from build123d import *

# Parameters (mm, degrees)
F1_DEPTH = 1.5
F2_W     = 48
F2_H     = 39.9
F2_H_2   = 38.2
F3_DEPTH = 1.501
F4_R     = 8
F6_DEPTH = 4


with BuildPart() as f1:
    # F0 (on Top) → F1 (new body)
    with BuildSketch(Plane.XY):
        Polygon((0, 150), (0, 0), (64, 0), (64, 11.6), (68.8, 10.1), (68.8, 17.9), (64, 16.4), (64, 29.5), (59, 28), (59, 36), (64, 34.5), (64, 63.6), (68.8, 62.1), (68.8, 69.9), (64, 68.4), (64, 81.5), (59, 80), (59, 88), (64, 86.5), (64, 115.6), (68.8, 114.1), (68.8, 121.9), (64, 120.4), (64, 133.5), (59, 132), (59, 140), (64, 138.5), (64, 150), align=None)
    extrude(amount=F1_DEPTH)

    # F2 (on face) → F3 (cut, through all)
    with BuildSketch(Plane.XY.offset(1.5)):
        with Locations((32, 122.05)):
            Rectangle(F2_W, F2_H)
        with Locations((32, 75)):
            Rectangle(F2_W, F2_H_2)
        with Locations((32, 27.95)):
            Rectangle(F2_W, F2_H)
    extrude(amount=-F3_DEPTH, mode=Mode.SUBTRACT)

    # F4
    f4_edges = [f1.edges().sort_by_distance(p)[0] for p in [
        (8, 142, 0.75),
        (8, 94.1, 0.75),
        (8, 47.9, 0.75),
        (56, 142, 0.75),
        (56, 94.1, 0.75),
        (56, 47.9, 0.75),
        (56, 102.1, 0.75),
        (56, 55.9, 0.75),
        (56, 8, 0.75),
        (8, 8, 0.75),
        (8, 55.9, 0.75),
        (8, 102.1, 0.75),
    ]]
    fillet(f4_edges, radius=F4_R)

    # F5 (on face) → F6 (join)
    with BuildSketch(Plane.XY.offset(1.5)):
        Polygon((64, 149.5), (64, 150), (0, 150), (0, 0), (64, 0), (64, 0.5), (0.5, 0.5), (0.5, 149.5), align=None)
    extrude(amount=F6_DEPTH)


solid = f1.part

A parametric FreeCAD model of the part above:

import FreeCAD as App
import Part
import Sketcher


def edges_at(feature, points):
    """Names of the edges that pass closest to the given points."""
    edges = feature.Shape.Edges
    near = lambda p: min(range(len(edges)), key=lambda i: edges[i].distToShape(Part.Vertex(*p))[0])
    return sorted({f"Edge{near(p) + 1}" for p in points})

doc = App.newDocument("Part")
params = doc.addObject("Spreadsheet::Sheet", "Params")
for row, (alias, value) in enumerate([
    ("sketch1_width", "64 mm"),
    ("sketch1_height", "150 mm"),
    ("sketch1_height2", "8 mm"),
    ("sketch1_height3", "11.6 mm"),
    ("sketch1_height4", "7.8 mm"),
    ("pad1_length", "1.5 mm"),
    ("sketch2_width", "48 mm"),
    ("sketch2_height", "39.9 mm"),
    ("sketch2_height2", "38.2 mm"),
    ("fillet_radius", "8 mm"),
    ("sketch3_width", "64 mm"),
    ("sketch3_height", "150 mm"),
    ("sketch3_height2", "149 mm"),
    ("sketch3_width2", "63.5 mm"),
    ("pad2_length", "4 mm"),
], start=1):
    params.set(f"A{row}", alias)
    params.set(f"B{row}", "=" + value)
    params.setAlias(f"B{row}", alias)

body = doc.addObject("PartDesign::Body", "Body")

# Sketch on XY plane
sketch1 = body.newObject("Sketcher::SketchObject", "Sketch")
sketch1.AttachmentSupport = (doc.getObject("XY_Plane"), [""])
sketch1.MapMode = "FlatFace"
sketch1.addGeometry([
    Part.LineSegment(App.Vector(0, 150, 0), App.Vector(0, 0, 0)),  # 0
    Part.LineSegment(App.Vector(0, 0, 0), App.Vector(64, 0, 0)),  # 1
    Part.LineSegment(App.Vector(64, 0, 0), App.Vector(64, 12, 0)),  # 2
    Part.LineSegment(App.Vector(64, 12, 0), App.Vector(69, 10, 0)),  # 3
    Part.LineSegment(App.Vector(69, 10, 0), App.Vector(69, 18, 0)),  # 4
    Part.LineSegment(App.Vector(69, 18, 0), App.Vector(64, 16, 0)),  # 5
    Part.LineSegment(App.Vector(64, 16, 0), App.Vector(64, 30, 0)),  # 6
    Part.LineSegment(App.Vector(64, 30, 0), App.Vector(59, 28, 0)),  # 7
    Part.LineSegment(App.Vector(59, 28, 0), App.Vector(59, 36, 0)),  # 8
    Part.LineSegment(App.Vector(59, 36, 0), App.Vector(64, 34, 0)),  # 9
    Part.LineSegment(App.Vector(64, 34, 0), App.Vector(64, 64, 0)),  # 10
    Part.LineSegment(App.Vector(64, 64, 0), App.Vector(69, 62, 0)),  # 11
    Part.LineSegment(App.Vector(69, 62, 0), App.Vector(69, 70, 0)),  # 12
    Part.LineSegment(App.Vector(69, 70, 0), App.Vector(64, 68, 0)),  # 13
    Part.LineSegment(App.Vector(64, 68, 0), App.Vector(64, 82, 0)),  # 14
    Part.LineSegment(App.Vector(64, 82, 0), App.Vector(59, 80, 0)),  # 15
    Part.LineSegment(App.Vector(59, 80, 0), App.Vector(59, 88, 0)),  # 16
    Part.LineSegment(App.Vector(59, 88, 0), App.Vector(64, 86, 0)),  # 17
    Part.LineSegment(App.Vector(64, 86, 0), App.Vector(64, 116, 0)),  # 18
    Part.LineSegment(App.Vector(64, 116, 0), App.Vector(69, 114, 0)),  # 19
    Part.LineSegment(App.Vector(69, 114, 0), App.Vector(69, 122, 0)),  # 20
    Part.LineSegment(App.Vector(69, 122, 0), App.Vector(64, 120, 0)),  # 21
    Part.LineSegment(App.Vector(64, 120, 0), App.Vector(64, 134, 0)),  # 22
    Part.LineSegment(App.Vector(64, 134, 0), App.Vector(59, 132, 0)),  # 23
    Part.LineSegment(App.Vector(59, 132, 0), App.Vector(59, 140, 0)),  # 24
    Part.LineSegment(App.Vector(59, 140, 0), App.Vector(64, 138, 0)),  # 25
    Part.LineSegment(App.Vector(64, 138, 0), App.Vector(64, 150, 0)),  # 26
    Part.LineSegment(App.Vector(64, 150, 0), App.Vector(0, 150, 0)),  # 27
], False)
sketch1.addConstraint([
    Sketcher.Constraint("Coincident", 0, 2, 1, 1),
    Sketcher.Constraint("Coincident", 1, 2, 2, 1),
    Sketcher.Constraint("Coincident", 2, 2, 3, 1),
    Sketcher.Constraint("Coincident", 3, 2, 4, 1),
    Sketcher.Constraint("Coincident", 4, 2, 5, 1),
    Sketcher.Constraint("Coincident", 5, 2, 6, 1),
    Sketcher.Constraint("Coincident", 6, 2, 7, 1),
    Sketcher.Constraint("Coincident", 7, 2, 8, 1),
    Sketcher.Constraint("Coincident", 8, 2, 9, 1),
    Sketcher.Constraint("Coincident", 9, 2, 10, 1),
    Sketcher.Constraint("Coincident", 10, 2, 11, 1),
    Sketcher.Constraint("Coincident", 11, 2, 12, 1),
    Sketcher.Constraint("Coincident", 12, 2, 13, 1),
    Sketcher.Constraint("Coincident", 13, 2, 14, 1),
    Sketcher.Constraint("Coincident", 14, 2, 15, 1),
    Sketcher.Constraint("Coincident", 15, 2, 16, 1),
    Sketcher.Constraint("Coincident", 16, 2, 17, 1),
    Sketcher.Constraint("Coincident", 17, 2, 18, 1),
    Sketcher.Constraint("Coincident", 18, 2, 19, 1),
    Sketcher.Constraint("Coincident", 19, 2, 20, 1),
    Sketcher.Constraint("Coincident", 20, 2, 21, 1),
    Sketcher.Constraint("Coincident", 21, 2, 22, 1),
    Sketcher.Constraint("Coincident", 22, 2, 23, 1),
    Sketcher.Constraint("Coincident", 23, 2, 24, 1),
    Sketcher.Constraint("Coincident", 24, 2, 25, 1),
    Sketcher.Constraint("Coincident", 25, 2, 26, 1),
    Sketcher.Constraint("Coincident", 26, 2, 27, 1),
    Sketcher.Constraint("Coincident", 27, 2, 0, 1),
    Sketcher.Constraint("Vertical", 0),
    Sketcher.Constraint("Horizontal", 1),
    Sketcher.Constraint("Vertical", 2),
    Sketcher.Constraint("Vertical", 4),
    Sketcher.Constraint("Vertical", 6),
    Sketcher.Constraint("Vertical", 8),
    Sketcher.Constraint("Vertical", 10),
    Sketcher.Constraint("Vertical", 12),
    Sketcher.Constraint("Vertical", 14),
    Sketcher.Constraint("Vertical", 16),
    Sketcher.Constraint("Vertical", 18),
    Sketcher.Constraint("Vertical", 20),
    Sketcher.Constraint("Vertical", 22),
    Sketcher.Constraint("Vertical", 24),
    Sketcher.Constraint("Vertical", 26),
    Sketcher.Constraint("Horizontal", 27),
    Sketcher.Constraint("Coincident", 0, 2, -1, 1),
    Sketcher.Constraint("Parallel", 3, 11),
    Sketcher.Constraint("Parallel", 5, 13),
    Sketcher.Constraint("Parallel", 7, 15),
    Sketcher.Constraint("Parallel", 9, 17),
    Sketcher.Constraint("Parallel", 11, 19),
    Sketcher.Constraint("Parallel", 13, 21),
    Sketcher.Constraint("Parallel", 15, 23),
    Sketcher.Constraint("Parallel", 17, 25),
    Sketcher.Constraint("Vertical", 2, 2, 5, 2),
    Sketcher.Constraint("Vertical", 6, 2, 9, 2),
    Sketcher.Constraint("Vertical", 4, 2, 11, 2),
    Sketcher.Constraint("Vertical", 10, 2, 13, 2),
    Sketcher.Constraint("Vertical", 8, 2, 15, 2),
    Sketcher.Constraint("Vertical", 14, 2, 17, 2),
    Sketcher.Constraint("Vertical", 12, 2, 19, 2),
    Sketcher.Constraint("Vertical", 18, 2, 21, 2),
    Sketcher.Constraint("Vertical", 16, 2, 23, 2),
    Sketcher.Constraint("Vertical", 22, 2, 25, 2),
    Sketcher.Constraint("Equal", 4, 12),
    Sketcher.Constraint("Equal", 6, 14),
    Sketcher.Constraint("Equal", 8, 16),
    Sketcher.Constraint("Equal", 10, 18),
    Sketcher.Constraint("Equal", 12, 20),
    Sketcher.Constraint("Equal", 14, 22),
    Sketcher.Constraint("Equal", 16, 24),
    Sketcher.Constraint("Equal", 3, 5),
    Sketcher.Constraint("Equal", 7, 9),
    Sketcher.Constraint("DistanceX", 1, 1, 1, 2, 64.0),
    Sketcher.Constraint("DistanceY", 0, 2, 0, 1, 150.0),
    Sketcher.Constraint("DistanceY", 8, 1, 8, 2, 8.0),
    Sketcher.Constraint("DistanceY", 2, 1, 2, 2, 11.6),
    Sketcher.Constraint("DistanceY", 4, 1, 4, 2, 7.8),
    Sketcher.Constraint("DistanceY", 6, 1, 6, 2, 13.1),
    Sketcher.Constraint("DistanceY", 10, 1, 10, 2, 29.1),
    Sketcher.Constraint("DistanceY", 26, 1, 26, 2, 11.5),
    Sketcher.Constraint("DistanceX", -1, 1, 7, 2, 59.0),
    Sketcher.Constraint("DistanceY", -1, 1, 7, 2, 28.0),
    Sketcher.Constraint("DistanceX", -1, 1, 3, 2, 68.8),
])
sketch1.setExpression("Constraints[72]", "Params.sketch1_width")
sketch1.setExpression("Constraints[73]", "Params.sketch1_height")
sketch1.setExpression("Constraints[74]", "Params.sketch1_height2")
sketch1.setExpression("Constraints[75]", "Params.sketch1_height3")
sketch1.setExpression("Constraints[76]", "Params.sketch1_height4")
pad1 = body.newObject("PartDesign::Pad", "Pad")
pad1.Profile = sketch1
pad1.setExpression("Length", "Params.pad1_length")

# Sketch on XY plane
sketch2 = body.newObject("Sketcher::SketchObject", "Sketch001")
sketch2.AttachmentSupport = (doc.getObject("XY_Plane"), [""])
sketch2.MapMode = "FlatFace"
sketch2.AttachmentOffset = App.Placement(App.Vector(0, 0, 1.5), App.Rotation())
sketch2.addGeometry([
    Part.LineSegment(App.Vector(8, 142, 0), App.Vector(8, 102, 0)),  # 0
    Part.LineSegment(App.Vector(8, 102, 0), App.Vector(56, 102, 0)),  # 1
    Part.LineSegment(App.Vector(56, 102, 0), App.Vector(56, 142, 0)),  # 2
    Part.LineSegment(App.Vector(56, 142, 0), App.Vector(8, 142, 0)),  # 3
    Part.LineSegment(App.Vector(8, 94, 0), App.Vector(8, 56, 0)),  # 4
    Part.LineSegment(App.Vector(8, 56, 0), App.Vector(56, 56, 0)),  # 5
    Part.LineSegment(App.Vector(56, 56, 0), App.Vector(56, 94, 0)),  # 6
    Part.LineSegment(App.Vector(56, 94, 0), App.Vector(8, 94, 0)),  # 7
    Part.LineSegment(App.Vector(8, 48, 0), App.Vector(8, 8, 0)),  # 8
    Part.LineSegment(App.Vector(8, 8, 0), App.Vector(56, 8, 0)),  # 9
    Part.LineSegment(App.Vector(56, 8, 0), App.Vector(56, 48, 0)),  # 10
    Part.LineSegment(App.Vector(56, 48, 0), App.Vector(8, 48, 0)),  # 11
], False)
sketch2.addConstraint([
    Sketcher.Constraint("Coincident", 0, 2, 1, 1),
    Sketcher.Constraint("Coincident", 1, 2, 2, 1),
    Sketcher.Constraint("Coincident", 2, 2, 3, 1),
    Sketcher.Constraint("Coincident", 3, 2, 0, 1),
    Sketcher.Constraint("Coincident", 4, 2, 5, 1),
    Sketcher.Constraint("Coincident", 5, 2, 6, 1),
    Sketcher.Constraint("Coincident", 6, 2, 7, 1),
    Sketcher.Constraint("Coincident", 7, 2, 4, 1),
    Sketcher.Constraint("Coincident", 8, 2, 9, 1),
    Sketcher.Constraint("Coincident", 9, 2, 10, 1),
    Sketcher.Constraint("Coincident", 10, 2, 11, 1),
    Sketcher.Constraint("Coincident", 11, 2, 8, 1),
    Sketcher.Constraint("Vertical", 0),
    Sketcher.Constraint("Horizontal", 1),
    Sketcher.Constraint("Vertical", 2),
    Sketcher.Constraint("Horizontal", 3),
    Sketcher.Constraint("Vertical", 4),
    Sketcher.Constraint("Horizontal", 5),
    Sketcher.Constraint("Vertical", 6),
    Sketcher.Constraint("Horizontal", 7),
    Sketcher.Constraint("Vertical", 8),
    Sketcher.Constraint("Horizontal", 9),
    Sketcher.Constraint("Vertical", 10),
    Sketcher.Constraint("Horizontal", 11),
    Sketcher.Constraint("Vertical", 3, 2, 4, 2),
    Sketcher.Constraint("Vertical", 2, 2, 5, 2),
    Sketcher.Constraint("Vertical", 7, 2, 8, 2),
    Sketcher.Constraint("Vertical", 6, 2, 9, 2),
    Sketcher.Constraint("Equal", 2, 8),
    Sketcher.Constraint("DistanceX", 1, 1, 1, 2, 48.0),
    Sketcher.Constraint("DistanceY", 0, 2, 0, 1, 39.9),
    Sketcher.Constraint("DistanceY", 4, 2, 4, 1, 38.2),
    Sketcher.Constraint("DistanceX", -1, 1, 0, 2, 8.0),
    Sketcher.Constraint("DistanceY", -1, 1, 2, 2, 142.0),
    Sketcher.Constraint("DistanceY", -1, 1, 8, 2, 8.0),
    Sketcher.Constraint("DistanceY", 6, 2, 1, 2, 8.0),
])
sketch2.setExpression("Constraints[29]", "Params.sketch2_width")
sketch2.setExpression("Constraints[30]", "Params.sketch2_height")
sketch2.setExpression("Constraints[31]", "Params.sketch2_height2")
pocket1 = body.newObject("PartDesign::Pocket", "Pocket")
pocket1.Profile = sketch2
pocket1.Type = "ThroughAll"
doc.recompute()

fillet = body.newObject("PartDesign::Fillet", "Fillet")
fillet.Base = (pocket1, edges_at(pocket1, [
    (8, 142, 0.75),
    (8, 94.1, 0.75),
    (8, 47.9, 0.75),
    (56, 142, 0.75),
    (56, 94.1, 0.75),
    (56, 47.9, 0.75),
    (56, 102.1, 0.75),
    (56, 55.9, 0.75),
    (56, 8, 0.75),
    (8, 8, 0.75),
    (8, 55.9, 0.75),
    (8, 102.1, 0.75),
]))
fillet.setExpression("Radius", "Params.fillet_radius")

# Sketch on XY plane
sketch3 = body.newObject("Sketcher::SketchObject", "Sketch002")
sketch3.AttachmentSupport = (doc.getObject("XY_Plane"), [""])
sketch3.MapMode = "FlatFace"
sketch3.AttachmentOffset = App.Placement(App.Vector(0, 0, 1.5), App.Rotation())
sketch3.addGeometry([
    Part.LineSegment(App.Vector(64, 149.5, 0), App.Vector(64, 150, 0)),  # 0
    Part.LineSegment(App.Vector(64, 150, 0), App.Vector(0, 150, 0)),  # 1
    Part.LineSegment(App.Vector(0, 150, 0), App.Vector(0, 0, 0)),  # 2
    Part.LineSegment(App.Vector(0, 0, 0), App.Vector(64, 0, 0)),  # 3
    Part.LineSegment(App.Vector(64, 0, 0), App.Vector(64, 0.5, 0)),  # 4
    Part.LineSegment(App.Vector(64, 0.5, 0), App.Vector(0.5, 0.5, 0)),  # 5
    Part.LineSegment(App.Vector(0.5, 0.5, 0), App.Vector(0.5, 149.5, 0)),  # 6
    Part.LineSegment(App.Vector(0.5, 149.5, 0), App.Vector(64, 149.5, 0)),  # 7
], False)
sketch3.addConstraint([
    Sketcher.Constraint("Coincident", 0, 2, 1, 1),
    Sketcher.Constraint("Coincident", 1, 2, 2, 1),
    Sketcher.Constraint("Coincident", 2, 2, 3, 1),
    Sketcher.Constraint("Coincident", 3, 2, 4, 1),
    Sketcher.Constraint("Coincident", 4, 2, 5, 1),
    Sketcher.Constraint("Coincident", 5, 2, 6, 1),
    Sketcher.Constraint("Coincident", 6, 2, 7, 1),
    Sketcher.Constraint("Coincident", 7, 2, 0, 1),
    Sketcher.Constraint("Vertical", 0),
    Sketcher.Constraint("Horizontal", 1),
    Sketcher.Constraint("Vertical", 2),
    Sketcher.Constraint("Horizontal", 3),
    Sketcher.Constraint("Vertical", 4),
    Sketcher.Constraint("Horizontal", 5),
    Sketcher.Constraint("Vertical", 6),
    Sketcher.Constraint("Horizontal", 7),
    Sketcher.Constraint("Coincident", 2, 2, -1, 1),
    Sketcher.Constraint("Vertical", 0, 2, 3, 2),
    Sketcher.Constraint("Equal", 0, 4),
    Sketcher.Constraint("DistanceX", 1, 2, 1, 1, 64.0),
    Sketcher.Constraint("DistanceY", 2, 2, 2, 1, 150.0),
    Sketcher.Constraint("DistanceY", 6, 1, 6, 2, 149.0),
    Sketcher.Constraint("DistanceX", 5, 2, 5, 1, 63.5),
])
sketch3.setExpression("Constraints[19]", "Params.sketch3_width")
sketch3.setExpression("Constraints[20]", "Params.sketch3_height")
sketch3.setExpression("Constraints[21]", "Params.sketch3_height2")
sketch3.setExpression("Constraints[22]", "Params.sketch3_width2")
pad2 = body.newObject("PartDesign::Pad", "Pad001")
pad2.Profile = sketch3
pad2.setExpression("Length", "Params.pad2_length")

doc.recompute()
